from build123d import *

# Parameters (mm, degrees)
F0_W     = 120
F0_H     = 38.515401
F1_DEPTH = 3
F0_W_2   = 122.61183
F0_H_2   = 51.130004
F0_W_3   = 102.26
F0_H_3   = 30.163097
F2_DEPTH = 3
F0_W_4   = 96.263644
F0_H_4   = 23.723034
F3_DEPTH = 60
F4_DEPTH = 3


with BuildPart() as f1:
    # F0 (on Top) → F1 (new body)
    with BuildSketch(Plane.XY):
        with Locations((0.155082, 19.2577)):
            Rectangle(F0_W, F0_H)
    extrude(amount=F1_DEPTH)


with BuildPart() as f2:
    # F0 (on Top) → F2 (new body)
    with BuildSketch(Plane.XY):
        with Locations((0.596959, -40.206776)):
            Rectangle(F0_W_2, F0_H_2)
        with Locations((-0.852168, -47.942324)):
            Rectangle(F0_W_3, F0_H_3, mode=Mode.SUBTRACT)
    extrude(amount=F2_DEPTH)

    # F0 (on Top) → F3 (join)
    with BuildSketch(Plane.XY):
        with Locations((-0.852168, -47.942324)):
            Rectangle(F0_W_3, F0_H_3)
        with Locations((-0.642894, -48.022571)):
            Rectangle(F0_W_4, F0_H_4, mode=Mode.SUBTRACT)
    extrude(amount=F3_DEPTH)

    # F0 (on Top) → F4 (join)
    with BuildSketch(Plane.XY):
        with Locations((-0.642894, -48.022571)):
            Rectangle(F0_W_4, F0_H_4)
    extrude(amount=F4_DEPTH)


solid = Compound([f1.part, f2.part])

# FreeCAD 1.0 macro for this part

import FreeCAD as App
import Part
import Sketcher
from FreeCAD import Vector
Q = App.Units.Quantity


def add_polygon(sketch, points):
    """Adds a closed chain of lines whose ends are joined by coincident constraints."""
    first, n = sketch.GeometryCount, len(points)
    for a, b in zip(points, points[1:] + points[:1]):
        sketch.addGeometry(Part.LineSegment(App.Vector(*a, 0), App.Vector(*b, 0)), False)
    for i in range(n):
        sketch.addConstraint(Sketcher.Constraint("Coincident", first + i, 2, first + (i + 1) % n, 1))

doc = App.newDocument("Part")
params = doc.addObject("Spreadsheet::Sheet", "Params")
for row, (alias, value) in enumerate([
    ("sketch1_width", "120 mm"),
    ("pad1_length", "3 mm"),
    ("sketch2_width", "102.26 mm"),
    ("pad2_length", "3 mm"),
    ("sketch3_width", "102.26 mm"),
    ("pad3_length", "60 mm"),
    ("pad4_length", "3 mm"),
], start=1):
    params.set(f"A{row}", alias)
    params.set(f"B{row}", "=" + value)
    params.setAlias(f"B{row}", alias)

body = doc.addObject("PartDesign::Body", "Body")

sketch1 = body.newObject("Sketcher::SketchObject", "Sketch")
sketch1.AttachmentSupport = (doc.getObject("XY_Plane"), [""])
sketch1.MapMode = "FlatFace"
add_polygon(sketch1, [(-60, 39), (-60, 0), (60, 0), (60, 39)])
sketch1.addConstraint([
    Sketcher.Constraint("Vertical", 0),
    Sketcher.Constraint("Horizontal", 1),
    Sketcher.Constraint("Vertical", 2),
    Sketcher.Constraint("Horizontal", 3),
    Sketcher.Constraint("PointOnObject", 0, 2, -1),
    Sketcher.Constraint("DistanceX", 1, 1, 1, 2, Q("120 mm")),
    Sketcher.Constraint("DistanceY", 0, 2, 0, 1, Q("38.515401 mm")),
    Sketcher.Constraint("DistanceX", 0, 2, -1, 1, Q("59.844918 mm")),
])
sketch1.setExpression("Constraints[9]", "Params.sketch1_width")
pad1 = body.newObject("PartDesign::Pad", "Pad")
pad1.Profile = sketch1
pad1.setExpression("Length", "Params.pad1_length")
body2 = doc.addObject("PartDesign::Body", "Body001")

sketch2 = body2.newObject("Sketcher::SketchObject", "Sketch001")
sketch2.AttachmentSupport = (doc.getObject("XY_Plane001"), [""])
sketch2.MapMode = "FlatFace"
add_polygon(sketch2, [(-61, -15), (-61, -66), (62, -66), (62, -15)])
add_polygon(sketch2, [(50, -63), (-52, -63), (-52, -33), (50, -33)])
sketch2.addConstraint([
    Sketcher.Constraint("Vertical", 0),
    Sketcher.Constraint("Horizontal", 1),
    Sketcher.Constraint("Vertical", 2),
    Sketcher.Constraint("Horizontal", 3),
    Sketcher.Constraint("Horizontal", 4),
    Sketcher.Constraint("Vertical", 5),
    Sketcher.Constraint("Horizontal", 6),
    Sketcher.Constraint("Vertical", 7),
    Sketcher.Constraint("DistanceX", 4, 2, 4, 1, Q("102.26 mm")),
    Sketcher.Constraint("DistanceY", 5, 2, 3, 2, Q("18.219002 mm")),
    Sketcher.Constraint("DistanceX", 1, 1, 1, 2, Q("122.61183 mm")),
    Sketcher.Constraint("DistanceY", 4, 2, 3, 2, Q("48.382099 mm")),
    Sketcher.Constraint("DistanceY", 0, 2, 0, 1, Q("51.130004 mm")),
    Sketcher.Constraint("DistanceX", -1, 1, 6, 2, Q("50.277832 mm")),
    Sketcher.Constraint("DistanceX", 4, 2, 1, 2, Q("113.885042 mm")),
    Sketcher.Constraint("DistanceY", 0, 2, -1, 1, Q("65.771778 mm")),
])
sketch2.setExpression("Constraints[16]", "Params.sketch2_width")
pad2 = body2.newObject("PartDesign::Pad", "Pad001")
pad2.Profile = sketch2
pad2.setExpression("Length", "Params.pad2_length")

sketch3 = body2.newObject("Sketcher::SketchObject", "Sketch002")
sketch3.AttachmentSupport = (doc.getObject("XY_Plane001"), [""])
sketch3.MapMode = "FlatFace"
add_polygon(sketch3, [(-52, -33), (-52, -63), (50, -63), (50, -33)])
add_polygon(sketch3, [(47, -60), (-49, -60), (-49, -36), (47, -36)])
sketch3.addConstraint([
    Sketcher.Constraint("Vertical", 0),
    Sketcher.Constraint("Horizontal", 1),
    Sketcher.Constraint("Vertical", 2),
    Sketcher.Constraint("Horizontal", 3),
    Sketcher.Constraint("Horizontal", 4),
    Sketcher.Constraint("Vertical", 5),
    Sketcher.Constraint("Horizontal", 6),
    Sketcher.Constraint("Vertical", 7),
    Sketcher.Constraint("DistanceX", 1, 1, 1, 2, Q("102.26 mm")),
    Sketcher.Constraint("DistanceX", 4, 2, 4, 1, Q("96.263644 mm")),
    Sketcher.Constraint("DistanceY", 0, 2, 0, 1, Q("30.163097 mm")),
    Sketcher.Constraint("DistanceY", 5, 1, 5, 2, Q("23.723034 mm")),
    Sketcher.Constraint("DistanceX", -1, 1, 1, 2, Q("50.277832 mm")),
    Sketcher.Constraint("DistanceX", 4, 2, 1, 2, Q("99.052548 mm")),
    Sketcher.Constraint("DistanceY", 5, 2, 3, 2, Q("3.300278 mm")),
    Sketcher.Constraint("DistanceY", 0, 2, -1, 1, Q("63.023873 mm")),
])
sketch3.setExpression("Constraints[16]", "Params.sketch3_width")
pad3 = body2.newObject("PartDesign::Pad", "Pad002")
pad3.Profile = sketch3
pad3.setExpression("Length", "Params.pad3_length")

sketch4 = body2.newObject("Sketcher::SketchObject", "Sketch003")
sketch4.AttachmentSupport = (doc.getObject("XY_Plane001"), [""])
sketch4.MapMode = "FlatFace"
add_polygon(sketch4, [(-49, -36), (-49, -60), (47, -60), (47, -36)])
sketch4.addConstraint([
    Sketcher.Constraint("Vertical", 0),
    Sketcher.Constraint("Horizontal", 1),
    Sketcher.Constraint("Vertical", 2),
    Sketcher.Constraint("Horizontal", 3),
    Sketcher.Constraint("DistanceX", 1, 1, 1, 2, Q("96.263644 mm")),
    Sketcher.Constraint("DistanceY", 0, 2, 0, 1, Q("23.723034 mm")),
    Sketcher.Constraint("DistanceX", 0, 2, -1, 1, Q("48.774716 mm")),
    Sketcher.Constraint("DistanceY", 0, 2, -1, 1, Q("59.884088 mm")),
])
pad4 = body2.newObject("PartDesign::Pad", "Pad003")
pad4.Profile = sketch4
pad4.setExpression("Length", "Params.pad4_length")

doc.recompute()
